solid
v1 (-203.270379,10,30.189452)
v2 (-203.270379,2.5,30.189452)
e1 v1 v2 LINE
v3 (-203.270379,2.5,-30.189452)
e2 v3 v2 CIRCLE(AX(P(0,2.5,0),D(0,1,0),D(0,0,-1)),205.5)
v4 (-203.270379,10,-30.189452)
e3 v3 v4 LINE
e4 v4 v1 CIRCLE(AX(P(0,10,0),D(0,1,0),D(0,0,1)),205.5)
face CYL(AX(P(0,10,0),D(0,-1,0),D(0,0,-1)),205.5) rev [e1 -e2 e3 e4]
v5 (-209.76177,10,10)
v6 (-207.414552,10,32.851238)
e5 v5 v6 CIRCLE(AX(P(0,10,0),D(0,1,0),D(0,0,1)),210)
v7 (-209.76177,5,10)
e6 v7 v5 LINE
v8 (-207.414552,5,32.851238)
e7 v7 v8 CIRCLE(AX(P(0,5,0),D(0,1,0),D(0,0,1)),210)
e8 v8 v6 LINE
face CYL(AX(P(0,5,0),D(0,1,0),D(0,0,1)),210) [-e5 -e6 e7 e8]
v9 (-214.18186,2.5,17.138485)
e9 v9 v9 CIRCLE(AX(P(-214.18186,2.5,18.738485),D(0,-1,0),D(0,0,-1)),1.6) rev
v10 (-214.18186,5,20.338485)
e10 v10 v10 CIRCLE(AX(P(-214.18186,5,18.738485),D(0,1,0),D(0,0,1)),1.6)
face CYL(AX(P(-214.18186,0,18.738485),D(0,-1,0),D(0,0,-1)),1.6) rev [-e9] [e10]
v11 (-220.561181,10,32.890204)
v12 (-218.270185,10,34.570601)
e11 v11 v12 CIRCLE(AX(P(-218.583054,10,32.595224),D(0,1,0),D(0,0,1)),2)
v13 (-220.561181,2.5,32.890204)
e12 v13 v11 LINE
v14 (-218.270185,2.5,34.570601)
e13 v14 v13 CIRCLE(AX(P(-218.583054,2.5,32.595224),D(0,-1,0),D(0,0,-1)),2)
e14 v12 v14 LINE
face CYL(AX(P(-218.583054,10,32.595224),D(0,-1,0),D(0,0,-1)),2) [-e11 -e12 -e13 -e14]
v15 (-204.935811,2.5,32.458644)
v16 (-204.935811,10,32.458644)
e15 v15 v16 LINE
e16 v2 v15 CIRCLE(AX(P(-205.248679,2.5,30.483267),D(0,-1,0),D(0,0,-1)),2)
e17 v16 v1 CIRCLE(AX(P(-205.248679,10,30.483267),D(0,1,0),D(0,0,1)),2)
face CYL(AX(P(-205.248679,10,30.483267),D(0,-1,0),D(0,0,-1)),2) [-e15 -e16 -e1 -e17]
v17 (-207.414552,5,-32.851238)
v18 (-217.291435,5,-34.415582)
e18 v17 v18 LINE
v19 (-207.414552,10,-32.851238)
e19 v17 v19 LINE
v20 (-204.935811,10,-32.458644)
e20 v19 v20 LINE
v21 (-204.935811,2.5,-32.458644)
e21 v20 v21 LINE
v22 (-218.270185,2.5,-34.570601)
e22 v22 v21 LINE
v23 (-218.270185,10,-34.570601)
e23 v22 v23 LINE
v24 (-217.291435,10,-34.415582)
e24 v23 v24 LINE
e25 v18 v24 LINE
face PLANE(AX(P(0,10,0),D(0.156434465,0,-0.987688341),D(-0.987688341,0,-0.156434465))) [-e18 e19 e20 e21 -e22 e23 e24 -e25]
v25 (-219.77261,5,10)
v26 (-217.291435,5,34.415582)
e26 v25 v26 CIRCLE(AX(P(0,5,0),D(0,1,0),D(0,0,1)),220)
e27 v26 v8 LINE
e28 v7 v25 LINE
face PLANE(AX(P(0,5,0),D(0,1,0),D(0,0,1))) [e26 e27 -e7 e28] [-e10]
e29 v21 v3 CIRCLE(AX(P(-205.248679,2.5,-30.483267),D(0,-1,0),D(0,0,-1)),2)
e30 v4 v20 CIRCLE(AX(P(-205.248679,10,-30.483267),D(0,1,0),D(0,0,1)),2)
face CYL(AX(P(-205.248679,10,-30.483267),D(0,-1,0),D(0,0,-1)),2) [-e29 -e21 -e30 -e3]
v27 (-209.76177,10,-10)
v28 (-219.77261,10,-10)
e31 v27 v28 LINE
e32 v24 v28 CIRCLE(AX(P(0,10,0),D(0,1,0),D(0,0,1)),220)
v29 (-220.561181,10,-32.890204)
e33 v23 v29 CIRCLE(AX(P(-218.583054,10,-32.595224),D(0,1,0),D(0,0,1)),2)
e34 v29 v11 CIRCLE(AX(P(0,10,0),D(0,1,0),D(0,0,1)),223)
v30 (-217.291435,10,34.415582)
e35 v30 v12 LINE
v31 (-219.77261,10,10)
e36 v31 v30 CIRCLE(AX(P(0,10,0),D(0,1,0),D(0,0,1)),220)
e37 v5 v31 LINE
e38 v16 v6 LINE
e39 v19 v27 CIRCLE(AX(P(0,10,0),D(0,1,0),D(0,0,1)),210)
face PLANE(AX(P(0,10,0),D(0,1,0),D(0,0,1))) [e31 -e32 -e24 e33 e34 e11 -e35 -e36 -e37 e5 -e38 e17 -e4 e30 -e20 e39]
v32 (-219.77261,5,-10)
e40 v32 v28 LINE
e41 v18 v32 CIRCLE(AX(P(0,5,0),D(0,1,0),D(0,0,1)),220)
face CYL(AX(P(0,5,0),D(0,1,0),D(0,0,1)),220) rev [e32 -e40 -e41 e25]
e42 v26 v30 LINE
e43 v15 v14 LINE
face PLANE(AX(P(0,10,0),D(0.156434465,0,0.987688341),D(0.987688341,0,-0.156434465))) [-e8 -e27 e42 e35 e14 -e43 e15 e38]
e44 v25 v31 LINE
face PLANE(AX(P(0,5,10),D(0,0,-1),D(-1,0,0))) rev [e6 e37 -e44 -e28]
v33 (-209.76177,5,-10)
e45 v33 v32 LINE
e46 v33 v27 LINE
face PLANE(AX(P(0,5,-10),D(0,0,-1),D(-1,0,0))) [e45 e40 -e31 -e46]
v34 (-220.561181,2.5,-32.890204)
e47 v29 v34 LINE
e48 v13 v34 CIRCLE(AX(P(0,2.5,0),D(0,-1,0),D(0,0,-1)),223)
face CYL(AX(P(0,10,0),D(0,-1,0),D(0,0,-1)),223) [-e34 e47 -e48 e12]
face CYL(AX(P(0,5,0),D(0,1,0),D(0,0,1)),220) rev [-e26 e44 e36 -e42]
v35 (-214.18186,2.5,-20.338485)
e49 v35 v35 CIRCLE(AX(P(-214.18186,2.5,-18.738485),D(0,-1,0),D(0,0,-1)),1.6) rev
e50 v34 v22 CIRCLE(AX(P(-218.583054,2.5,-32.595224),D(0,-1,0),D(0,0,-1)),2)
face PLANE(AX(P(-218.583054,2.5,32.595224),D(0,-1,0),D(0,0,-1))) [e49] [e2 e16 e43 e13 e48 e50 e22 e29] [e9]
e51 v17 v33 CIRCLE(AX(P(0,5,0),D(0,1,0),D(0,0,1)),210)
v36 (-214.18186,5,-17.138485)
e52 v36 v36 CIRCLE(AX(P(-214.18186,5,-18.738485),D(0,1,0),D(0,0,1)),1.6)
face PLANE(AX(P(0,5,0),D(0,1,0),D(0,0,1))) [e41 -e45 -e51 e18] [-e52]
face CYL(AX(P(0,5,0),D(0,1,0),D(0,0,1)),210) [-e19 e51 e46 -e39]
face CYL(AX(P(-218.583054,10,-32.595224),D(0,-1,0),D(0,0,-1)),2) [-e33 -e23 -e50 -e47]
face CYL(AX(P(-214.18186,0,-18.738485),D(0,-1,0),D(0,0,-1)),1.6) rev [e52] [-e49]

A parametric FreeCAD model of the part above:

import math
import FreeCAD as App
import Part
import Sketcher

V = App.Vector
Q = App.Units.Quantity


def edges_at(feature, points):
    """Names of the edges that pass closest to the given points."""
    edges = feature.Shape.Edges
    near = lambda p: min(range(len(edges)), key=lambda i: edges[i].distToShape(Part.Vertex(*p))[0])
    return sorted({f"Edge{near(p) + 1}" for p in points})

doc = App.newDocument("Part")
body = doc.addObject("PartDesign::Body", "Body")

sketch1 = body.newObject("Sketcher::SketchObject", "Sketch")
sketch1.AttachmentSupport = (doc.getObject("XZ_Plane"), [""])
sketch1.MapMode = "FlatFace"
sketch1.addGeometry(Part.LineSegment(V(-217.291435, 34.415582, 0), V(-207.414552, 32.851238, 0)), False)
sketch1.addGeometry(Part.LineSegment(V(-207.414552, 32.851238, 0), V(-202.969954, 32.147283, 0)), False)
sketch1.addGeometry(Part.ArcOfCircle(Part.Circle(V(0, 0, 0), V(0, 0, 1), 205.5), math.radians(171), math.radians(189)), False)
sketch1.addGeometry(Part.LineSegment(V(-202.969954, -32.147283, 0), V(-207.414552, -32.851238, 0)), False)
sketch1.addGeometry(Part.LineSegment(V(-207.414552, -32.851238, 0), V(-217.291435, -34.415582, 0)), False)
sketch1.addGeometry(Part.LineSegment(V(-217.291435, -34.415582, 0), V(-220.2545, -34.884886, 0)), False)
sketch1.addGeometry(Part.ArcOfCircle(Part.Circle(V(0, 0, 0), V(0, 0, 1), 223), math.radians(171), math.radians(189)), False)
sketch1.addGeometry(Part.LineSegment(V(-220.2545, 34.884886, 0), V(-217.291435, 34.415582, 0)), False)
sketch1.addConstraint(Sketcher.Constraint("Coincident", 0, 2, 1, 1))
sketch1.addConstraint(Sketcher.Constraint("Coincident", 1, 2, 2, 1))
sketch1.addConstraint(Sketcher.Constraint("Coincident", 2, 2, 3, 1))
sketch1.addConstraint(Sketcher.Constraint("Coincident", 3, 2, 4, 1))
sketch1.addConstraint(Sketcher.Constraint("Coincident", 4, 2, 5, 1))
sketch1.addConstraint(Sketcher.Constraint("Coincident", 5, 2, 6, 2))
sketch1.addConstraint(Sketcher.Constraint("Coincident", 6, 1, 7, 1))
sketch1.addConstraint(Sketcher.Constraint("Coincident", 7, 2, 0, 1))
sketch1.addConstraint(Sketcher.Constraint("Coincident", 2, 3, -1, 1))
sketch1.addConstraint(Sketcher.Constraint("Coincident", 6, 3, -1, 1))
sketch1.addConstraint(Sketcher.Constraint("Symmetric", 0, 2, 3, 2, -1))
sketch1.addConstraint(Sketcher.Constraint("Symmetric", 4, 2, 7, 2, -1))
sketch1.addConstraint(Sketcher.Constraint("Parallel", 0, 1))
sketch1.addConstraint(Sketcher.Constraint("Parallel", 3, 4))
sketch1.addConstraint(Sketcher.Constraint("Parallel", 4, 5))
sketch1.addConstraint(Sketcher.Constraint("Parallel", 1, 7))
sketch1.addConstraint(Sketcher.Constraint("Radius", 6, Q("223 mm")))
sketch1.addConstraint(Sketcher.Constraint("Radius", 2, Q("205.5 mm")))
sketch1.addConstraint(Sketcher.Constraint("Angle", 0, Q("-9 deg")))
sketch1.addConstraint(Sketcher.Constraint("Distance", 0, Q("10 mm")))
sketch1.addConstraint(Sketcher.Constraint("Distance", 5, Q("3 mm")))
sketch1.addConstraint(Sketcher.Constraint("DistanceX", 5, 2, -1, 1, Q("220.2545 mm")))
pad1 = body.newObject("PartDesign::Pad", "Pad")
pad1.Profile = sketch1
pad1.Length = 10
pad1.Reversed = True

sketch2 = body.newObject("Sketcher::SketchObject", "Sketch001")
sketch2.AttachmentSupport = (doc.getObject("XZ_Plane"), [""])
sketch2.MapMode = "FlatFace"
sketch2.AttachmentOffset = App.Placement(V(0, 0, -10), App.Rotation())
sketch2.addGeometry(Part.LineSegment(V(-219.77261, -10, 0), V(-209.76177, -10, 0)), False)
sketch2.addGeometry(Part.ArcOfCircle(Part.Circle(V(0, 0, 0), V(0, 0, 1), 210), math.radians(-177.270597), math.radians(-171)), False)
sketch2.addGeometry(Part.LineSegment(V(-207.414552, -32.851238, 0), V(-217.291435, -34.415582, 0)), False)
sketch2.addGeometry(Part.ArcOfCircle(Part.Circle(V(0, 0, 0), V(0, 0, 1), 220), math.radians(-177.394749), math.radians(-171)), False)
sketch2.addGeometry(Part.ArcOfCircle(Part.Circle(V(0, 0, 0), V(0, 0, 1), 210), math.radians(171), math.radians(177.270597)), False)
sketch2.addGeometry(Part.LineSegment(V(-209.76177, 10, 0), V(-219.77261, 10, 0)), False)
sketch2.addGeometry(Part.ArcOfCircle(Part.Circle(V(0, 0, 0), V(0, 0, 1), 220), math.radians(171), math.radians(177.394749)), False)
sketch2.addGeometry(Part.LineSegment(V(-217.291435, 34.415582, 0), V(-207.414552, 32.851238, 0)), False)
sketch2.addConstraint(Sketcher.Constraint("Coincident", 0, 2, 1, 1))
sketch2.addConstraint(Sketcher.Constraint("Coincident", 1, 2, 2, 1))
sketch2.addConstraint(Sketcher.Constraint("Coincident", 2, 2, 3, 2))
sketch2.addConstraint(Sketcher.Constraint("Coincident", 3, 1, 0, 1))
sketch2.addConstraint(Sketcher.Constraint("Coincident", 4, 2, 5, 1))
sketch2.addConstraint(Sketcher.Constraint("Coincident", 5, 2, 6, 2))
sketch2.addConstraint(Sketcher.Constraint("Coincident", 6, 1, 7, 1))
sketch2.addConstraint(Sketcher.Constraint("Coincident", 7, 2, 4, 1))
sketch2.addConstraint(Sketcher.Constraint("Horizontal", 0))
sketch2.addConstraint(Sketcher.Constraint("Horizontal", 5))
sketch2.addConstraint(Sketcher.Constraint("Coincident", 1, 3, -1, 1))
sketch2.addConstraint(Sketcher.Constraint("Coincident", 3, 3, -1, 1))
sketch2.addConstraint(Sketcher.Constraint("Coincident", 4, 3, -1, 1))
sketch2.addConstraint(Sketcher.Constraint("Coincident", 6, 3, -1, 1))
sketch2.addConstraint(Sketcher.Constraint("Equal", 1, 4))
sketch2.addConstraint(Sketcher.Constraint("Equal", 3, 6))
sketch2.addConstraint(Sketcher.Constraint("Vertical", 0, 2, 4, 2))
sketch2.addConstraint(Sketcher.Constraint("Vertical", 2, 2, 6, 1))
sketch2.addConstraint(Sketcher.Constraint("Vertical", 1, 2, 7, 2))
sketch2.addConstraint(Sketcher.Constraint("Radius", 1, Q("210 mm")))
sketch2.addConstraint(Sketcher.Constraint("Radius", 3, Q("220 mm")))
sketch2.addConstraint(Sketcher.Constraint("Angle", 2, Q("-171 deg")))
sketch2.addConstraint(Sketcher.Constraint("DistanceY", 0, 2, -1, 1, Q("10 mm")))
sketch2.addConstraint(Sketcher.Constraint("DistanceX", 1, 2, -1, 1, Q("207.414552 mm")))
pocket1 = body.newObject("PartDesign::Pocket", "Pocket")
pocket1.Profile = sketch2
pocket1.Length = 5
pocket1.Reversed = True

sketch3 = body.newObject("Sketcher::SketchObject", "Sketch002")
sketch3.AttachmentSupport = (doc.getObject("XZ_Plane"), [""])
sketch3.MapMode = "FlatFace"
sketch3.addGeometry(Part.Circle(V(-214.18186, 18.738485, 0), V(0, 0, 1), 1.6), False)
sketch3.addGeometry(Part.Circle(V(-214.18186, -18.738485, 0), V(0, 0, 1), 1.6), False)
sketch3.addConstraint(Sketcher.Constraint("Equal", 0, 1))
sketch3.addConstraint(Sketcher.Constraint("Symmetric", 0, 3, 1, 3, -1))
sketch3.addConstraint(Sketcher.Constraint("Diameter", 0, Q("3.2 mm")))
sketch3.addConstraint(Sketcher.Constraint("DistanceX", 0, 3, -1, 1, Q("214.18186 mm")))
sketch3.addConstraint(Sketcher.Constraint("DistanceY", 1, 3, 0, 3, Q("37.476969 mm")))
doc.recompute()
hole = body.newObject("PartDesign::Hole", "Hole")
hole.Profile = sketch3
hole.ThreadType = "None"
hole.Diameter = 3.2
hole.DepthType = "ThroughAll"
doc.recompute()

fillet = body.newObject("PartDesign::Fillet", "Fillet")
fillet.Base = (hole, edges_at(hole, [
    (-220.254, 5, 34.885),
    (-220.254, 5, -34.885),
    (-202.97, 5, -32.147),
    (-202.97, 5, 32.147),
]))
fillet.Radius = 2

sketch4 = body.newObject("Sketcher::SketchObject", "Sketch003")
sketch4.AttachmentSupport = (doc.getObject("XZ_Plane"), [""])
sketch4.MapMode = "FlatFace"
sketch4.AttachmentOffset = App.Placement(V(0, 0, -2.5), App.Rotation())
sketch4.addGeometry(Part.LineSegment(V(-218.270185, -34.570601, 0), V(-204.935811, -32.458644, 0)), False)
sketch4.addGeometry(Part.ArcOfCircle(Part.Circle(V(-205.248679, -30.483267, 0), V(0, 0, 1), 2), math.radians(-81), math.radians(8.447743)), False)
sketch4.addGeometry(Part.ArcOfCircle(Part.Circle(V(0, 0, 0), V(0, 0, 1), 205.5), math.radians(171.552257), math.radians(188.447743)), False)
sketch4.addGeometry(Part.ArcOfCircle(Part.Circle(V(-205.248679, 30.483267, 0), V(0, 0, 1), 2), math.radians(-8.447743), math.radians(81)), False)
sketch4.addGeometry(Part.LineSegment(V(-204.935811, 32.458644, 0), V(-218.270185, 34.570601, 0)), False)
sketch4.addGeometry(Part.ArcOfCircle(Part.Circle(V(-218.583054, 32.595224, 0), V(0, 0, 1), 2), math.radians(81), math.radians(171.518521)), False)
sketch4.addGeometry(Part.ArcOfCircle(Part.Circle(V(0, 0, 0), V(0, 0, 1), 223), math.radians(171.518521), math.radians(188.481479)), False)
sketch4.addGeometry(Part.ArcOfCircle(Part.Circle(V(-218.583054, -32.595224, 0), V(0, 0, 1), 2), math.radians(-171.518521), math.radians(-81)), False)
sketch4.addConstraint(Sketcher.Constraint("Tangent", 0, 2, 1, 1))
sketch4.addConstraint(Sketcher.Constraint("Tangent", 1, 2, 2, 2))
sketch4.addConstraint(Sketcher.Constraint("Tangent", 2, 1, 3, 1))
sketch4.addConstraint(Sketcher.Constraint("Tangent", 3, 2, 4, 1))
sketch4.addConstraint(Sketcher.Constraint("Tangent", 4, 2, 5, 1))
sketch4.addConstraint(Sketcher.Constraint("Tangent", 5, 2, 6, 1))
sketch4.addConstraint(Sketcher.Constraint("Tangent", 6, 2, 7, 1))
sketch4.addConstraint(Sketcher.Constraint("Tangent", 7, 2, 0, 1))
sketch4.addConstraint(Sketcher.Constraint("Coincident", 2, 3, -1, 1))
sketch4.addConstraint(Sketcher.Constraint("Coincident", 6, 3, -1, 1))
sketch4.addConstraint(Sketcher.Constraint("Equal", 1, 3))
sketch4.addConstraint(Sketcher.Constraint("Equal", 3, 5))
sketch4.addConstraint(Sketcher.Constraint("Equal", 5, 7))
sketch4.addConstraint(Sketcher.Constraint("Symmetric", 0, 2, 3, 2, -1))
sketch4.addConstraint(Sketcher.Constraint("Radius", 1, Q("2 mm")))
sketch4.addConstraint(Sketcher.Constraint("Radius", 6, Q("223 mm")))
sketch4.addConstraint(Sketcher.Constraint("Radius", 2, Q("205.5 mm")))
sketch4.addConstraint(Sketcher.Constraint("Angle", 0, Q("9 deg")))
sketch4.addConstraint(Sketcher.Constraint("DistanceY", -1, 1, 4, 2, Q("34.570601 mm")))
pocket2 = body.newObject("PartDesign::Pocket", "Pocket001")
pocket2.Profile = sketch4
pocket2.Length = 2.5
pocket2.Reversed = True

doc.recompute()
